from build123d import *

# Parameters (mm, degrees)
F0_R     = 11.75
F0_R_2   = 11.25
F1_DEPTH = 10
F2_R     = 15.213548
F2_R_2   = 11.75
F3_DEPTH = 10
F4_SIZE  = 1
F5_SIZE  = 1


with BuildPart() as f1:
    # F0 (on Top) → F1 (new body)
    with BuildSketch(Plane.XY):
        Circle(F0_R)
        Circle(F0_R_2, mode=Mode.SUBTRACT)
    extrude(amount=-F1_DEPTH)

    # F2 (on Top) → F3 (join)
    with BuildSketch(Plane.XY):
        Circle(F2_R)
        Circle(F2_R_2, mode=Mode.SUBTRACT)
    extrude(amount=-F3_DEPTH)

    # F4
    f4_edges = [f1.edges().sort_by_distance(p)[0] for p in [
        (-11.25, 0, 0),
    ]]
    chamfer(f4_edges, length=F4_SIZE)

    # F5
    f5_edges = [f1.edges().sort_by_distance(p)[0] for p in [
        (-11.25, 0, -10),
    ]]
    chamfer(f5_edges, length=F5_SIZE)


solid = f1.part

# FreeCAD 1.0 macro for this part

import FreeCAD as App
import Part
import Sketcher

V = App.Vector


def edges_at(feature, points):
    """Names of the edges that pass closest to the given points."""
    edges = feature.Shape.Edges
    near = lambda p: min(range(len(edges)), key=lambda i: edges[i].distToShape(Part.Vertex(*p))[0])
    return sorted({f"Edge{near(p) + 1}" for p in points})

doc = App.newDocument("Part")
body = doc.addObject("PartDesign::Body", "Body")

# Sketch on XY plane
sketch1 = doc.addObject("Sketcher::SketchObject", "Sketch")
body.addObject(sketch1)
sketch1.AttachmentSupport = (doc.XY_Plane, [""])
sketch1.MapMode = "FlatFace"
sketch1.addGeometry([
    Part.Circle(V(0, 0, 0), V(0, 0, 1), 11.75),
    Part.Circle(V(0, 0, 0), V(0, 0, 1), 11.25),
], False)
sketch1.addConstraint([
    Sketcher.Constraint("Coincident", 0, 3, -1, 1),
    Sketcher.Constraint("Coincident", 1, 3, -1, 1),
    Sketcher.Constraint("Diameter", 0, 23.5),
    Sketcher.Constraint("Diameter", 1, 22.5),
])
pad1 = doc.addObject("PartDesign::Pad", "Pad")
body.addObject(pad1)
pad1.Profile = sketch1
pad1.Length = 10
pad1.Reversed = True

# Sketch on XY plane
sketch2 = doc.addObject("Sketcher::SketchObject", "Sketch001")
body.addObject(sketch2)
sketch2.AttachmentSupport = (doc.XY_Plane, [""])
sketch2.MapMode = "FlatFace"
sketch2.addGeometry([
    Part.Circle(V(0, 0, 0), V(0, 0, 1), 15.213548),
    Part.Circle(V(0, 0, 0), V(0, 0, 1), 11.75),
], False)
sketch2.addConstraint([
    Sketcher.Constraint("Coincident", 0, 3, -1, 1),
    Sketcher.Constraint("Coincident", 1, 3, -1, 1),
    Sketcher.Constraint("Diameter", 1, 23.5),
    Sketcher.Constraint("Diameter", 0, 30.427096),
])
pad2 = doc.addObject("PartDesign::Pad", "Pad001")
body.addObject(pad2)
pad2.Profile = sketch2
pad2.Length = 10
pad2.Reversed = True
doc.recompute()

chamfer = doc.addObject("PartDesign::Chamfer", "Chamfer")
body.addObject(chamfer)
chamfer.Base = (pad2, edges_at(pad2, [(-11.25, 0, 0)]))
chamfer.Size = 1
doc.recompute()

chamfer2 = doc.addObject("PartDesign::Chamfer", "Chamfer001")
body.addObject(chamfer2)
chamfer2.Base = (chamfer, edges_at(chamfer, [(-11.25, 0, -10)]))
chamfer2.Size = 1

doc.recompute()
